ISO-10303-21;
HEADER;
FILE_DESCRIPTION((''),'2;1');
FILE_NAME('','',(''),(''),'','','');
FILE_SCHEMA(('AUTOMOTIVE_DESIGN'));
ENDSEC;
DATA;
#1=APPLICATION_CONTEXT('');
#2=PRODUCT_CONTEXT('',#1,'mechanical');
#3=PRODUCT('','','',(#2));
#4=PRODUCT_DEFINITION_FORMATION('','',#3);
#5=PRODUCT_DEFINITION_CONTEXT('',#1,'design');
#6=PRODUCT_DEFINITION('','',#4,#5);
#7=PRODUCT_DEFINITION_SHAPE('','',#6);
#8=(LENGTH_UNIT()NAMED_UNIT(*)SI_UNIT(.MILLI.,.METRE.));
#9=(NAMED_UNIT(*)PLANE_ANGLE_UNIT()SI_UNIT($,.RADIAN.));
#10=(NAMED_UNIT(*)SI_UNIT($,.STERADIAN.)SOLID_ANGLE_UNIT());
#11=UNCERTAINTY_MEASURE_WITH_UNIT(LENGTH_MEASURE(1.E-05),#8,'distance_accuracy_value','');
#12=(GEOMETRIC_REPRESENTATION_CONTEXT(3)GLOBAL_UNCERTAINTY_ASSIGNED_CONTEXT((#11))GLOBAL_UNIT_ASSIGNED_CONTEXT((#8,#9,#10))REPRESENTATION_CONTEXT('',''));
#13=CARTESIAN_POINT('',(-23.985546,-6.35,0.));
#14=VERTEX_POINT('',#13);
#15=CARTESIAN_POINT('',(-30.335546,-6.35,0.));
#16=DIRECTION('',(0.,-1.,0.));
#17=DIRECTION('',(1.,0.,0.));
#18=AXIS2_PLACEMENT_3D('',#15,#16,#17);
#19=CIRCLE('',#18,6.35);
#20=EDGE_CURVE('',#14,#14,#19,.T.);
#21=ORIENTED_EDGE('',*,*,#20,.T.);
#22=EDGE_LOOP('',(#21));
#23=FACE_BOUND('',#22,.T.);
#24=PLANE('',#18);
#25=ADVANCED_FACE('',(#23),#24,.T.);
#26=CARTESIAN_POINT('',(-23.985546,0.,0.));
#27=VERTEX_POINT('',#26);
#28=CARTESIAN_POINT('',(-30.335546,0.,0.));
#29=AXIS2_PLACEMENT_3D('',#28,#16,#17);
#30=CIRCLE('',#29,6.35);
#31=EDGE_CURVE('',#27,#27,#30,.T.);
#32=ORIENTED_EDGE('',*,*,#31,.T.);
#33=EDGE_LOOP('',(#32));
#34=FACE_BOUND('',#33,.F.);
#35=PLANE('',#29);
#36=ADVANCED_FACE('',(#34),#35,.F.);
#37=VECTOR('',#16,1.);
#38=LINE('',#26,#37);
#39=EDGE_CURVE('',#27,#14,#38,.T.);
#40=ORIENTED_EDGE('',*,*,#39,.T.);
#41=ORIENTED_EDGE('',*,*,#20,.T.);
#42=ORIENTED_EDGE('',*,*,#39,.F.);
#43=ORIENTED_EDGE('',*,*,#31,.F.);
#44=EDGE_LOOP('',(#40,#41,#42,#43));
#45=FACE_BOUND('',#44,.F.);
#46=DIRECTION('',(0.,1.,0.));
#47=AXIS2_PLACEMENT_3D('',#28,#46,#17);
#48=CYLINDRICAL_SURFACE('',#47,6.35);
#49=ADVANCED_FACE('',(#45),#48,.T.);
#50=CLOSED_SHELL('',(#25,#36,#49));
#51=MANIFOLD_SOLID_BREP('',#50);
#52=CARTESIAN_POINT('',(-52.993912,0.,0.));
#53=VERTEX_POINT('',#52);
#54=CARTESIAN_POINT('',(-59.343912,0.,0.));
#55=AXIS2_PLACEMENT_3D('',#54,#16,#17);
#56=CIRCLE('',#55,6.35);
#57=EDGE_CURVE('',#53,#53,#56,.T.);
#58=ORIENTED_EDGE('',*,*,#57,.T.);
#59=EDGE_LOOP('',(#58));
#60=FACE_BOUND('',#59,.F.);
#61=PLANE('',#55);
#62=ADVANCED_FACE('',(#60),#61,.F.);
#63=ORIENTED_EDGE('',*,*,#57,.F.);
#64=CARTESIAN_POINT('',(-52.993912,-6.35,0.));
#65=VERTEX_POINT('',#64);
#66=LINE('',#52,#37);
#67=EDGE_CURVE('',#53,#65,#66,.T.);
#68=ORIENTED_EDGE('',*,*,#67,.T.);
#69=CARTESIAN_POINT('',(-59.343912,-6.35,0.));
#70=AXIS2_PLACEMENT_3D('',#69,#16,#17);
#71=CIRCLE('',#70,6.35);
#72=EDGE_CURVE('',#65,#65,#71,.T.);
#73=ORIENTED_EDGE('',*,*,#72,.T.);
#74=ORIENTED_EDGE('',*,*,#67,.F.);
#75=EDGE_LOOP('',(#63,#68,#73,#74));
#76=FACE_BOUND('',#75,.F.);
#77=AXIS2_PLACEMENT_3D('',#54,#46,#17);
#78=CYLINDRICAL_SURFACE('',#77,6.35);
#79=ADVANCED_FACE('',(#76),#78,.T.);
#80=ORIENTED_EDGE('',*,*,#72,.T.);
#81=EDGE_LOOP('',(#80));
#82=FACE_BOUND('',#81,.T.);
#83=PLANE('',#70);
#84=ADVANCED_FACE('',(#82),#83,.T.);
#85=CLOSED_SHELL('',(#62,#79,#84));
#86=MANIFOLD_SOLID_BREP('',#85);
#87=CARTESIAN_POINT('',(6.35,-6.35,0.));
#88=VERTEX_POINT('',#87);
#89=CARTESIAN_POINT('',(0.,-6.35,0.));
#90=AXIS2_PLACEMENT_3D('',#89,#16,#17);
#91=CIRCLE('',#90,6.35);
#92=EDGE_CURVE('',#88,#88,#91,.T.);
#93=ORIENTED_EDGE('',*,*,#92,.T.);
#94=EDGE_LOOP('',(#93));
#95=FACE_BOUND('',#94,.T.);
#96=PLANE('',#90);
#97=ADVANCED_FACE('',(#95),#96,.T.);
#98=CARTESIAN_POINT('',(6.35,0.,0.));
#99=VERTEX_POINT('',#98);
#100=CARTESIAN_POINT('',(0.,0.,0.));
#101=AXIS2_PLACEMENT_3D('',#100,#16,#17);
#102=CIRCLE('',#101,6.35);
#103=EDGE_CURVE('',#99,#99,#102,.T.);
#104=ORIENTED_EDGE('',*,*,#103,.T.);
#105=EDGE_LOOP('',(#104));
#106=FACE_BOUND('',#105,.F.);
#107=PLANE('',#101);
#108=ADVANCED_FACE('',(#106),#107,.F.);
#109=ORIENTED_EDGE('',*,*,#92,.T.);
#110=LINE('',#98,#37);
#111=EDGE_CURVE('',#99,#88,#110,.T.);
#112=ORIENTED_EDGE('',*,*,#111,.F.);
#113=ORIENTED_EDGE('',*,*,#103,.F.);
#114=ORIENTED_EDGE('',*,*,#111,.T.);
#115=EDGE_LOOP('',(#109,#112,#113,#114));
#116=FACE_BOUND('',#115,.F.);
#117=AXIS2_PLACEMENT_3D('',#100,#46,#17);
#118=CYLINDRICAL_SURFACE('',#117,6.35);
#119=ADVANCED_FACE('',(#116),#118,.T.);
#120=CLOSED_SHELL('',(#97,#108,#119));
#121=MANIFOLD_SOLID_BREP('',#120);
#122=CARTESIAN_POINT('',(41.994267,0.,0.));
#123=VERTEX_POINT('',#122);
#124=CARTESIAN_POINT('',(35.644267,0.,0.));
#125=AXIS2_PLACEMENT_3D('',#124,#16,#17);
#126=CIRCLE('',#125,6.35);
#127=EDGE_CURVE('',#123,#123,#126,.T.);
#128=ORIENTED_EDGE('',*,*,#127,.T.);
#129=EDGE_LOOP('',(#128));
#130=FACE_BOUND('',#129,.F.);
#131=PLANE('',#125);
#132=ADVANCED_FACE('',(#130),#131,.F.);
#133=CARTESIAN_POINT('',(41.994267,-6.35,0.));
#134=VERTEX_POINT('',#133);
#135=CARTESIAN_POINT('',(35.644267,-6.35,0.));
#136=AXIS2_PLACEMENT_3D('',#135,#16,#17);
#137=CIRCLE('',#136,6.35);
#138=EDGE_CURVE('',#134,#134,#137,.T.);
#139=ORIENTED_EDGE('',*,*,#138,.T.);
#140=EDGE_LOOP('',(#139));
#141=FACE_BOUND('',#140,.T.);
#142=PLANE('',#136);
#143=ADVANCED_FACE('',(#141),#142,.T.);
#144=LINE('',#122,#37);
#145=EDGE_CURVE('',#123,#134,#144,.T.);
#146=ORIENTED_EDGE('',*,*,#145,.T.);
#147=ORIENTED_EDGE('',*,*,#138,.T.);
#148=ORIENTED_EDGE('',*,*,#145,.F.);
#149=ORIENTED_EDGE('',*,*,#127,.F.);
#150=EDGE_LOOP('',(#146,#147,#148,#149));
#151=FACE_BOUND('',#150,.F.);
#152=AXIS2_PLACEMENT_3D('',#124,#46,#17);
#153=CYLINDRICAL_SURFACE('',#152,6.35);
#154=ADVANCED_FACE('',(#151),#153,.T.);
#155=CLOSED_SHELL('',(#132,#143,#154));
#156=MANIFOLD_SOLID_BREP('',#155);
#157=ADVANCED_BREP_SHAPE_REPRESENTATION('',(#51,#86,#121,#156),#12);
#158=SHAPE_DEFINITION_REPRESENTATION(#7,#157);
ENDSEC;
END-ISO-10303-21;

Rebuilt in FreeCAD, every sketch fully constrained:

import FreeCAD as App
import Part
import Sketcher
from FreeCAD import Vector
Q = App.Units.Quantity

doc = App.newDocument("Part")
body = doc.addObject("PartDesign::Body", "Body")
body.AllowCompound = True

# Sketch on XZ plane
sketch1 = body.newObject("Sketcher::SketchObject", "Sketch")
sketch1.AttachmentSupport = (doc.getObject("XZ_Plane"), [""])
sketch1.MapMode = "FlatFace"
sketch1.addGeometry([
    Part.Circle(Vector(0, 0, 0), Vector(0, 0, 1), 6),
    Part.Circle(Vector(36, 0, 0), Vector(0, 0, 1), 6),
    Part.Circle(Vector(-30, 0, 0), Vector(0, 0, 1), 6),
    Part.Circle(Vector(-59, 0, 0), Vector(0, 0, 1), 6),
], False)
sketch1.addConstraint([
    Sketcher.Constraint("Coincident", 0, 3, -1, 1),
    Sketcher.Constraint("Equal", 0, 1),
    Sketcher.Constraint("Equal", 1, 2),
    Sketcher.Constraint("Equal", 2, 3),
    Sketcher.Constraint("PointOnObject", 1, 3, -1),
    Sketcher.Constraint("PointOnObject", 2, 3, -1),
    Sketcher.Constraint("PointOnObject", 3, 3, -1),
    Sketcher.Constraint("Diameter", 0, Q("0.5 in")),
    Sketcher.Constraint("DistanceX", 3, 3, 1, 3, 94.988179),
    Sketcher.Constraint("DistanceX", -1, 1, 1, 3, 35.644267),
    Sketcher.Constraint("DistanceX", 2, 3, -1, 1, 30.335546),
])
pad1 = body.newObject("PartDesign::Pad", "Pad")
pad1.Profile = sketch1
pad1.Length = Q("0.25 in")

doc.recompute()
